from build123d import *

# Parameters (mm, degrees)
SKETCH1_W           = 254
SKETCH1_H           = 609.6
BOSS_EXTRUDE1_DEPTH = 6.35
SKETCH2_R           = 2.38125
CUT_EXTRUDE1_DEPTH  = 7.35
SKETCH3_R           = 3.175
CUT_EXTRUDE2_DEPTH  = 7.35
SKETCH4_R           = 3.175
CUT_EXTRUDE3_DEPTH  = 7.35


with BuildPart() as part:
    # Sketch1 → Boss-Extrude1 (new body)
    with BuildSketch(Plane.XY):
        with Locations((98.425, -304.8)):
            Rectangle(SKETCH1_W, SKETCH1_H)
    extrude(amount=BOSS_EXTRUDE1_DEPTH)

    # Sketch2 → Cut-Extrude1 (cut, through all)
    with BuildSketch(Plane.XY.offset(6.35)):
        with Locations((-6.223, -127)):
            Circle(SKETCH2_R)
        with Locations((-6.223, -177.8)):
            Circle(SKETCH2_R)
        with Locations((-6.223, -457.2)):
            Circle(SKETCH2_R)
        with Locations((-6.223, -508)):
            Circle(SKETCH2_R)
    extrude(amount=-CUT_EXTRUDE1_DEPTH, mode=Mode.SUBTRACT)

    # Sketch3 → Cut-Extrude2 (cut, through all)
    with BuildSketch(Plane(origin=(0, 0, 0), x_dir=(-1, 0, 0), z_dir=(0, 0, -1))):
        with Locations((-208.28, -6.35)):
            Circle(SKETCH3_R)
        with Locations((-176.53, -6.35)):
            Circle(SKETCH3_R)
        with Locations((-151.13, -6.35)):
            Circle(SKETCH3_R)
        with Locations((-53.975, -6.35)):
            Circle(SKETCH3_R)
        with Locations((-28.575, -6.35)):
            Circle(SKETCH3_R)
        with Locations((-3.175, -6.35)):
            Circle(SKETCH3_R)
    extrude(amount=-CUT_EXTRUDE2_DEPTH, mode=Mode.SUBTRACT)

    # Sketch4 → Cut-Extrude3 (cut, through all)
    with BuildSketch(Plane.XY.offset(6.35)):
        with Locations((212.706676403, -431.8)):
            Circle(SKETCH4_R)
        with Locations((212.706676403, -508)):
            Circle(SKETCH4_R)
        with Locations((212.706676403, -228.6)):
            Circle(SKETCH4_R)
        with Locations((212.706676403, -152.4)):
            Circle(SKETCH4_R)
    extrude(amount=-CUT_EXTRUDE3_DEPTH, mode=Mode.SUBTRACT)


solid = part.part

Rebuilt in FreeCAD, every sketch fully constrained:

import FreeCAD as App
import Part
import Sketcher
Q = App.Units.Quantity

doc = App.newDocument("Part")
body = doc.addObject("PartDesign::Body", "Body")

# Sketch on XY plane
sketch1 = body.newObject("Sketcher::SketchObject", "Sketch")
sketch1.AttachmentSupport = (doc.getObject("XY_Plane"), [""])
sketch1.MapMode = "FlatFace"
sketch1.addGeometry([
    Part.LineSegment(App.Vector(-29, 0, 0), App.Vector(-29, -610, 0)),
    Part.LineSegment(App.Vector(-29, -610, 0), App.Vector(225, -610, 0)),
    Part.LineSegment(App.Vector(225, -610, 0), App.Vector(225, 0, 0)),
    Part.LineSegment(App.Vector(225, 0, 0), App.Vector(-29, 0, 0)),
], False)
sketch1.addConstraint([
    Sketcher.Constraint("Coincident", 0, 2, 1, 1),
    Sketcher.Constraint("Coincident", 1, 2, 2, 1),
    Sketcher.Constraint("Coincident", 2, 2, 3, 1),
    Sketcher.Constraint("Coincident", 3, 2, 0, 1),
    Sketcher.Constraint("Vertical", 0),
    Sketcher.Constraint("Horizontal", 1),
    Sketcher.Constraint("Vertical", 2),
    Sketcher.Constraint("Horizontal", 3),
    Sketcher.Constraint("PointOnObject", 2, 2, -1),
    Sketcher.Constraint("DistanceX", 1, 1, 1, 2, Q("10 in")),
    Sketcher.Constraint("DistanceY", 0, 2, 0, 1, Q("24 in")),
    Sketcher.Constraint("DistanceX", 0, 2, -1, 1, Q("1.125 in")),
])
pad1 = body.newObject("PartDesign::Pad", "Pad")
pad1.Profile = sketch1
pad1.Length = Q("0.25 in")

# Sketch on XY plane
sketch2 = body.newObject("Sketcher::SketchObject", "Sketch001")
sketch2.AttachmentSupport = (doc.getObject("XY_Plane"), [""])
sketch2.MapMode = "FlatFace"
sketch2.AttachmentOffset = App.Placement(App.Vector(0, 0, 0.25 * 25.4), App.Rotation())
sketch2.addGeometry([
    Part.Circle(App.Vector(-6.2, -127, 0), App.Vector(0, 0, 1), 2.4),
    Part.Circle(App.Vector(-6.2, -177.8, 0), App.Vector(0, 0, 1), 2.4),
    Part.Circle(App.Vector(-6.2, -457.2, 0), App.Vector(0, 0, 1), 2.4),
    Part.Circle(App.Vector(-6.2, -508, 0), App.Vector(0, 0, 1), 2.4),
], False)
sketch2.addConstraint([
    Sketcher.Constraint("Equal", 0, 1),
    Sketcher.Constraint("Equal", 1, 2),
    Sketcher.Constraint("Equal", 2, 3),
    Sketcher.Constraint("Vertical", 0, 3, 1, 3),
    Sketcher.Constraint("Vertical", 1, 3, 2, 3),
    Sketcher.Constraint("Vertical", 2, 3, 3, 3),
    Sketcher.Constraint("Diameter", 0, Q("0.1875 in")),
    Sketcher.Constraint("DistanceY", 0, 3, -1, 1, Q("5 in")),
    Sketcher.Constraint("DistanceY", 1, 3, -1, 1, Q("7 in")),
    Sketcher.Constraint("DistanceY", 2, 3, -1, 1, Q("18 in")),
    Sketcher.Constraint("DistanceY", 3, 3, -1, 1, Q("20 in")),
    Sketcher.Constraint("DistanceX", 0, 3, -1, 1, Q("0.245 in")),
])
pocket1 = body.newObject("PartDesign::Pocket", "Pocket")
pocket1.Profile = sketch2
pocket1.Type = "ThroughAll"

# Sketch on XY plane
sketch3 = body.newObject("Sketcher::SketchObject", "Sketch002")
sketch3.AttachmentSupport = (doc.getObject("XY_Plane"), [""])
sketch3.MapMode = "FlatFace"
sketch3.addGeometry([
    Part.Circle(App.Vector(208.3, -6.3, 0), App.Vector(0, 0, 1), 3.2),  # 0
    Part.Circle(App.Vector(176.5, -6.3, 0), App.Vector(0, 0, 1), 3.2),  # 1
    Part.Circle(App.Vector(151.1, -6.3, 0), App.Vector(0, 0, 1), 3.2),  # 2
    Part.Circle(App.Vector(54, -6.3, 0), App.Vector(0, 0, 1), 3.2),  # 3
    Part.Circle(App.Vector(28.6, -6.3, 0), App.Vector(0, 0, 1), 3.2),  # 4
    Part.Circle(App.Vector(3.2, -6.3, 0), App.Vector(0, 0, 1), 3.2),  # 5
], False)
sketch3.addConstraint([
    Sketcher.Constraint("Equal", 0, 1),
    Sketcher.Constraint("Equal", 1, 2),
    Sketcher.Constraint("Equal", 2, 3),
    Sketcher.Constraint("Equal", 3, 4),
    Sketcher.Constraint("Equal", 4, 5),
    Sketcher.Constraint("Horizontal", 0, 3, 1, 3),
    Sketcher.Constraint("Horizontal", 1, 3, 2, 3),
    Sketcher.Constraint("Horizontal", 2, 3, 3, 3),
    Sketcher.Constraint("Horizontal", 3, 3, 4, 3),
    Sketcher.Constraint("Horizontal", 4, 3, 5, 3),
    Sketcher.Constraint("Diameter", 0, Q("0.25 in")),
    Sketcher.Constraint("DistanceX", 2, 3, 1, 3, Q("1 in")),
    Sketcher.Constraint("DistanceX", 4, 3, 3, 3, Q("1 in")),
    Sketcher.Constraint("DistanceX", 5, 3, 4, 3, Q("1 in")),
    Sketcher.Constraint("DistanceX", -1, 1, 0, 3, Q("8.2 in")),
    Sketcher.Constraint("DistanceY", 0, 3, -1, 1, Q("0.25 in")),
    Sketcher.Constraint("DistanceX", -1, 1, 1, 3, Q("6.95 in")),
    Sketcher.Constraint("DistanceX", -1, 1, 3, 3, Q("2.125 in")),
])
pocket2 = body.newObject("PartDesign::Pocket", "Pocket001")
pocket2.Profile = sketch3
pocket2.Type = "ThroughAll"
pocket2.Reversed = True

# Sketch on XY plane
sketch4 = body.newObject("Sketcher::SketchObject", "Sketch003")
sketch4.AttachmentSupport = (doc.getObject("XY_Plane"), [""])
sketch4.MapMode = "FlatFace"
sketch4.AttachmentOffset = App.Placement(App.Vector(0, 0, 0.25 * 25.4), App.Rotation())
sketch4.addGeometry([
    Part.Circle(App.Vector(212.7, -431.8, 0), App.Vector(0, 0, 1), 3.2),
    Part.Circle(App.Vector(212.7, -508, 0), App.Vector(0, 0, 1), 3.2),
    Part.Circle(App.Vector(212.7, -228.6, 0), App.Vector(0, 0, 1), 3.2),
    Part.Circle(App.Vector(212.7, -152.4, 0), App.Vector(0, 0, 1), 3.2),
], False)
sketch4.addConstraint([
    Sketcher.Constraint("Equal", 0, 1),
    Sketcher.Constraint("Equal", 1, 2),
    Sketcher.Constraint("Equal", 2, 3),
    Sketcher.Constraint("Vertical", 0, 3, 1, 3),
    Sketcher.Constraint("Vertical", 1, 3, 2, 3),
    Sketcher.Constraint("Vertical", 2, 3, 3, 3),
    Sketcher.Constraint("Diameter", 0, Q("0.25 in")),
    Sketcher.Constraint("DistanceY", 0, 3, -1, 1, Q("17 in")),
    Sketcher.Constraint("DistanceY", 1, 3, -1, 1, Q("20 in")),
    Sketcher.Constraint("DistanceY", 2, 3, -1, 1, Q("9 in")),
    Sketcher.Constraint("DistanceY", 3, 3, -1, 1, Q("6 in")),
    Sketcher.Constraint("DistanceX", -1, 1, 0, 3, 212.706676),
])
pocket3 = body.newObject("PartDesign::Pocket", "Pocket002")
pocket3.Profile = sketch4
pocket3.Type = "ThroughAll"

doc.recompute()
